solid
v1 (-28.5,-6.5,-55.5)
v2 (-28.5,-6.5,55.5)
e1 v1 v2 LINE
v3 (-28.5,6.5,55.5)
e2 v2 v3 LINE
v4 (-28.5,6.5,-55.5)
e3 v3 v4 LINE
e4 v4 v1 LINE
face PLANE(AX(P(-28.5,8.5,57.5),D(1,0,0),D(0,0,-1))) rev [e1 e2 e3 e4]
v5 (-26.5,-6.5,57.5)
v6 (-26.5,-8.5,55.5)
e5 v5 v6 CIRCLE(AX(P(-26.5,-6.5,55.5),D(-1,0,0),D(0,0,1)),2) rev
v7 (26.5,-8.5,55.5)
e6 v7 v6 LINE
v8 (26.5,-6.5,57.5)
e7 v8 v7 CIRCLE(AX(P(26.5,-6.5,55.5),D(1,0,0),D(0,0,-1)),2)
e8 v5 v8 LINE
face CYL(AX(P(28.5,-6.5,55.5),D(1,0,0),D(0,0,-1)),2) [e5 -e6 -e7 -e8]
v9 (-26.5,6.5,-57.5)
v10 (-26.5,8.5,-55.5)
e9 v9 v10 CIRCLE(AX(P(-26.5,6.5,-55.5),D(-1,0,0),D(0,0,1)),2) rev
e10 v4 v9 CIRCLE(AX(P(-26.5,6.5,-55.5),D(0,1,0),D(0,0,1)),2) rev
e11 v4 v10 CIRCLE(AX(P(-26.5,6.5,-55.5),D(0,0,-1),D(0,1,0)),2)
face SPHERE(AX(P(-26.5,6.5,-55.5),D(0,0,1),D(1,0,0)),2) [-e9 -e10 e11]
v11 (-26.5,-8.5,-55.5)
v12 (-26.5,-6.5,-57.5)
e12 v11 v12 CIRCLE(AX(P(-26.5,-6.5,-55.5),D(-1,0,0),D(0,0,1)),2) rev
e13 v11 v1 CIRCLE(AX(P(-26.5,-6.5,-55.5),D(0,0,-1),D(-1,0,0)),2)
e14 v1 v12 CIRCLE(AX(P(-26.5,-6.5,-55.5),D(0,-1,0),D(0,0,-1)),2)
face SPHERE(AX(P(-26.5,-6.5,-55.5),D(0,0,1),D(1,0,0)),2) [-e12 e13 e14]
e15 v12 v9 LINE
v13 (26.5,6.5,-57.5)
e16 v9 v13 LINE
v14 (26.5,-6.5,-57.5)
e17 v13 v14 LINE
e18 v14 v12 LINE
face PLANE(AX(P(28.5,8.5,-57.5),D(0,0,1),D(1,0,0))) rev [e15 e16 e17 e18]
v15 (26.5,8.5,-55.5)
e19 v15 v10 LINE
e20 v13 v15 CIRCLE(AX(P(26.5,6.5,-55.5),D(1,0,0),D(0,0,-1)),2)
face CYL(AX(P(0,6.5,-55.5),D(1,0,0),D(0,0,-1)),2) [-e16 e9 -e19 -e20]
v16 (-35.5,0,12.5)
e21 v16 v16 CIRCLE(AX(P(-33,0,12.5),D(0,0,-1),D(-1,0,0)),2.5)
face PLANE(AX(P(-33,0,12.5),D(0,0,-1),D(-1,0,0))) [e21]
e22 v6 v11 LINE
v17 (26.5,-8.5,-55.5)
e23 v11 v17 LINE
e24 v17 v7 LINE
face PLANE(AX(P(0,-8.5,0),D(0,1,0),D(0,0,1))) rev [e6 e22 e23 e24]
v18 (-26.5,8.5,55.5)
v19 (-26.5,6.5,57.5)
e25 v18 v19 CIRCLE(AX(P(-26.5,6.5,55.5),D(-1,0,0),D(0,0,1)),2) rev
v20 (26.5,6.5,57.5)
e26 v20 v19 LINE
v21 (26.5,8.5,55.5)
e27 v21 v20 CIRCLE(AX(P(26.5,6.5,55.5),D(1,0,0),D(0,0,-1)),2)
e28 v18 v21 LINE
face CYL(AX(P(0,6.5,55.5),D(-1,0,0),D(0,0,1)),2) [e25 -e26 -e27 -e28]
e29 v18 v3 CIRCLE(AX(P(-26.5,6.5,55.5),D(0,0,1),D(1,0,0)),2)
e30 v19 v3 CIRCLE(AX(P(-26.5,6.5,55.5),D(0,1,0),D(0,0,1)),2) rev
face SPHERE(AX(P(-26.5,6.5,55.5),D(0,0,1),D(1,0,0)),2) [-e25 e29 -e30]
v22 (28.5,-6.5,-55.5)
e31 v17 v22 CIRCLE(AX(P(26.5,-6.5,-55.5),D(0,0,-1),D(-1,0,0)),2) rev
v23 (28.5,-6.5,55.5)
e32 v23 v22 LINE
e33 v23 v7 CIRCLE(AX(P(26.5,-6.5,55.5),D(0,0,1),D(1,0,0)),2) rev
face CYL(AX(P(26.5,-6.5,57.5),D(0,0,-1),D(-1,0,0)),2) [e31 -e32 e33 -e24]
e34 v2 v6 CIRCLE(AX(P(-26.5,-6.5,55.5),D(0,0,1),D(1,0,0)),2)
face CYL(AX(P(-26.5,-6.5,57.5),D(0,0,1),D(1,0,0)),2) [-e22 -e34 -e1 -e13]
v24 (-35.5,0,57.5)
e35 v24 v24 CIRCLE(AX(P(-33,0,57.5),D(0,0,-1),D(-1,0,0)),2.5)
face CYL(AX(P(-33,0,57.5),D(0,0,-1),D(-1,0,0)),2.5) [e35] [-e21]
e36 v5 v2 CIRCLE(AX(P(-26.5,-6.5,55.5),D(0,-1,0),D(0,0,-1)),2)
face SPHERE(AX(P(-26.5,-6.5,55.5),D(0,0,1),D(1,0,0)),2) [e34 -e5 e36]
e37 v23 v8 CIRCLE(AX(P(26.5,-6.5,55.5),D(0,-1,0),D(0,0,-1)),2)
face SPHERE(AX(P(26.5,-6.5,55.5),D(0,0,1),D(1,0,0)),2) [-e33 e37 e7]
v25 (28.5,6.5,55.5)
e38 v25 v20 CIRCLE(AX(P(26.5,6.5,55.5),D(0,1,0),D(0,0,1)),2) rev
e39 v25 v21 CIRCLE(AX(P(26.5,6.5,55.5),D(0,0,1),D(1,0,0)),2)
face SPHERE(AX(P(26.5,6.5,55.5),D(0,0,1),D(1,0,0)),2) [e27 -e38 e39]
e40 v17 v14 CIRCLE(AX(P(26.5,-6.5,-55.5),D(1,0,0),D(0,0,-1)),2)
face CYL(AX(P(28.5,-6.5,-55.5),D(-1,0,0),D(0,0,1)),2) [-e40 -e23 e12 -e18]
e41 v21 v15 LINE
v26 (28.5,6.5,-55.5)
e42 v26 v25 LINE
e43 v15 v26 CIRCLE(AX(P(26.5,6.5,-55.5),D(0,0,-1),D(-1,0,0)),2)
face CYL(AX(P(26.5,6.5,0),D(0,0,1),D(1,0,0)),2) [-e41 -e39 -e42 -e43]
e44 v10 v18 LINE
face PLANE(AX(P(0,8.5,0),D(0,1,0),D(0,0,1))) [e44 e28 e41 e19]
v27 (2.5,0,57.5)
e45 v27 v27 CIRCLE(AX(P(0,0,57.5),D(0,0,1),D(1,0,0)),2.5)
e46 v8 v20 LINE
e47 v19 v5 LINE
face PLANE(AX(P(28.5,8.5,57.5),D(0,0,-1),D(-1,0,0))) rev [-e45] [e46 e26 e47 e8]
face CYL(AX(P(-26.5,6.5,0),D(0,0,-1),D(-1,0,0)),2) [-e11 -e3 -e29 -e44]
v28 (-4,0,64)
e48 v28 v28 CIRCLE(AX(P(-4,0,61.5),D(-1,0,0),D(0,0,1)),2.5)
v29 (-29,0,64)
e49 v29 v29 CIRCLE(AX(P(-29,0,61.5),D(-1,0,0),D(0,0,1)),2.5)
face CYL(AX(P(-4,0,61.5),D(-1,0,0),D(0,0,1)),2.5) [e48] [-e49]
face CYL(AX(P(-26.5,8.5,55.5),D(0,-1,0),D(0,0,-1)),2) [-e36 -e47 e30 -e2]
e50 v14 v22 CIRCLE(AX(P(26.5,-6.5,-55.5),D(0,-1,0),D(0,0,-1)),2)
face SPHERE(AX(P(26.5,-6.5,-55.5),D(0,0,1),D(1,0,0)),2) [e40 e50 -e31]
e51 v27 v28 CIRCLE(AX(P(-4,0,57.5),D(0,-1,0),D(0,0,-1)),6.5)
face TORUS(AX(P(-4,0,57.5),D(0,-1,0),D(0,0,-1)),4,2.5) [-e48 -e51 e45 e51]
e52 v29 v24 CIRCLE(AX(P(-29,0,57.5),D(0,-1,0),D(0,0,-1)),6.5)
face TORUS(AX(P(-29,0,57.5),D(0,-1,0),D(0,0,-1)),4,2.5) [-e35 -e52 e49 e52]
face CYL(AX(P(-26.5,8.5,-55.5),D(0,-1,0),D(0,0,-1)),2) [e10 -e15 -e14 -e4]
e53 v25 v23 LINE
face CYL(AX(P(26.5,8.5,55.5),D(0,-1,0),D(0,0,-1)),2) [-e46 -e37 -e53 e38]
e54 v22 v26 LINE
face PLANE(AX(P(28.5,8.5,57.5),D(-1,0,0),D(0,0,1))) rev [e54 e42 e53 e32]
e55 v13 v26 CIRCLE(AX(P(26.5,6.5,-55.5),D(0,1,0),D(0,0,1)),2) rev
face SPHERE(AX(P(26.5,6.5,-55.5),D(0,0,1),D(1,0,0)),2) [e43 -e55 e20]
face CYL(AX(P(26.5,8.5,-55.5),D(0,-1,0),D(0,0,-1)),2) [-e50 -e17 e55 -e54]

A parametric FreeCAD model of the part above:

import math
import FreeCAD as App
import Part
import Sketcher

V = App.Vector
Q = App.Units.Quantity

doc = App.newDocument("Part")
body = doc.addObject("PartDesign::Body", "Body")

sketch1 = doc.addObject("Sketcher::SketchObject", "Sketch")
body.addObject(sketch1)
sketch1.AttachmentSupport = (doc.XZ_Plane, [""])
sketch1.MapMode = "FlatFace"
sketch1.addGeometry(Part.LineSegment(V(-28, -58, 0), V(-28, 58, 0)), False)
sketch1.addGeometry(Part.LineSegment(V(-28, 58, 0), V(28, 58, 0)), False)
sketch1.addGeometry(Part.LineSegment(V(28, 58, 0), V(28, -58, 0)), False)
sketch1.addGeometry(Part.LineSegment(V(28, -58, 0), V(-28, -58, 0)), False)
sketch1.addConstraint(Sketcher.Constraint("Coincident", 0, 2, 1, 1))
sketch1.addConstraint(Sketcher.Constraint("Coincident", 1, 2, 2, 1))
sketch1.addConstraint(Sketcher.Constraint("Coincident", 2, 2, 3, 1))
sketch1.addConstraint(Sketcher.Constraint("Coincident", 3, 2, 0, 1))
sketch1.addConstraint(Sketcher.Constraint("Vertical", 0))
sketch1.addConstraint(Sketcher.Constraint("Horizontal", 1))
sketch1.addConstraint(Sketcher.Constraint("Vertical", 2))
sketch1.addConstraint(Sketcher.Constraint("Horizontal", 3))
sketch1.addConstraint(Sketcher.Constraint("Symmetric", 0, 2, 2, 2, -1, 1))
sketch1.addConstraint(Sketcher.Constraint("DistanceX", 1, 1, 1, 2, Q("57 mm")))
sketch1.addConstraint(Sketcher.Constraint("DistanceY", 0, 1, 0, 2, Q("115 mm")))
pad1 = doc.addObject("PartDesign::Pad", "Pad")
body.addObject(pad1)
pad1.Profile = sketch1
pad1.Length = 17
pad1.Midplane = True
doc.recompute()

fillet = doc.addObject("PartDesign::Fillet", "Fillet")
body.addObject(fillet)
fillet.Base = (pad1, ["Edge1"])
fillet.UseAllEdges = True
fillet.Radius = 2

sketch2 = doc.addObject("Sketcher::SketchObject", "Sketch001")
body.addObject(sketch2)
sketch2.AttachmentSupport = (doc.XY_Plane, [""])
sketch2.MapMode = "FlatFace"
sketch2.AttachmentOffset = App.Placement(V(0, 0, 57.5), App.Rotation())
sketch2.addGeometry(Part.Circle(V(0, 0, 0), V(0, 0, 1), 2.5), False)
sketch2.addConstraint(Sketcher.Constraint("Coincident", 0, 3, -1, 1))
sketch2.addConstraint(Sketcher.Constraint("Diameter", 0, Q("5 mm")))

sketch3 = doc.addObject("Sketcher::SketchObject", "Sketch002")
body.addObject(sketch3)
sketch3.AttachmentSupport = (doc.XZ_Plane, [""])
sketch3.MapMode = "FlatFace"
sketch3.addGeometry(Part.LineSegment(V(-33, 12.5, 0), V(-33, 57.5, 0)), False)
sketch3.addGeometry(Part.ArcOfCircle(Part.Circle(V(-29, 57.5, 0), V(0, 0, 1), 4), math.radians(90), math.radians(180)), False)
sketch3.addGeometry(Part.LineSegment(V(-29, 61.5, 0), V(-4, 61.5, 0)), False)
sketch3.addGeometry(Part.ArcOfCircle(Part.Circle(V(-4, 57.5, 0), V(0, 0, 1), 4), math.radians(0), math.radians(90)), False)
sketch3.addConstraint(Sketcher.Constraint("Tangent", 0, 2, 1, 2))
sketch3.addConstraint(Sketcher.Constraint("Tangent", 1, 1, 2, 1))
sketch3.addConstraint(Sketcher.Constraint("Tangent", 2, 2, 3, 2))
sketch3.addConstraint(Sketcher.Constraint("Vertical", 0))
sketch3.addConstraint(Sketcher.Constraint("Horizontal", 2))
sketch3.addConstraint(Sketcher.Constraint("Equal", 1, 3))
sketch3.addConstraint(Sketcher.Constraint("PointOnObject", 3, 1, -2))
sketch3.addConstraint(Sketcher.Constraint("Horizontal", 0, 2, 3, 1))
sketch3.addConstraint(Sketcher.Constraint("Radius", 1, Q("4 mm")))
sketch3.addConstraint(Sketcher.Constraint("DistanceX", 2, 1, 2, 2, Q("25 mm")))
sketch3.addConstraint(Sketcher.Constraint("DistanceY", 0, 1, 0, 2, Q("45 mm")))
sketch3.addConstraint(Sketcher.Constraint("DistanceY", -1, 1, 1, 3, Q("57.5 mm")))
doc.recompute()

additivepipe = doc.addObject("PartDesign::AdditivePipe", "AdditivePipe")
body.addObject(additivepipe)
additivepipe.Profile = sketch2
additivepipe.Spine = (sketch3, ["Edge1", "Edge2", "Edge3", "Edge4"])

doc.recompute()
